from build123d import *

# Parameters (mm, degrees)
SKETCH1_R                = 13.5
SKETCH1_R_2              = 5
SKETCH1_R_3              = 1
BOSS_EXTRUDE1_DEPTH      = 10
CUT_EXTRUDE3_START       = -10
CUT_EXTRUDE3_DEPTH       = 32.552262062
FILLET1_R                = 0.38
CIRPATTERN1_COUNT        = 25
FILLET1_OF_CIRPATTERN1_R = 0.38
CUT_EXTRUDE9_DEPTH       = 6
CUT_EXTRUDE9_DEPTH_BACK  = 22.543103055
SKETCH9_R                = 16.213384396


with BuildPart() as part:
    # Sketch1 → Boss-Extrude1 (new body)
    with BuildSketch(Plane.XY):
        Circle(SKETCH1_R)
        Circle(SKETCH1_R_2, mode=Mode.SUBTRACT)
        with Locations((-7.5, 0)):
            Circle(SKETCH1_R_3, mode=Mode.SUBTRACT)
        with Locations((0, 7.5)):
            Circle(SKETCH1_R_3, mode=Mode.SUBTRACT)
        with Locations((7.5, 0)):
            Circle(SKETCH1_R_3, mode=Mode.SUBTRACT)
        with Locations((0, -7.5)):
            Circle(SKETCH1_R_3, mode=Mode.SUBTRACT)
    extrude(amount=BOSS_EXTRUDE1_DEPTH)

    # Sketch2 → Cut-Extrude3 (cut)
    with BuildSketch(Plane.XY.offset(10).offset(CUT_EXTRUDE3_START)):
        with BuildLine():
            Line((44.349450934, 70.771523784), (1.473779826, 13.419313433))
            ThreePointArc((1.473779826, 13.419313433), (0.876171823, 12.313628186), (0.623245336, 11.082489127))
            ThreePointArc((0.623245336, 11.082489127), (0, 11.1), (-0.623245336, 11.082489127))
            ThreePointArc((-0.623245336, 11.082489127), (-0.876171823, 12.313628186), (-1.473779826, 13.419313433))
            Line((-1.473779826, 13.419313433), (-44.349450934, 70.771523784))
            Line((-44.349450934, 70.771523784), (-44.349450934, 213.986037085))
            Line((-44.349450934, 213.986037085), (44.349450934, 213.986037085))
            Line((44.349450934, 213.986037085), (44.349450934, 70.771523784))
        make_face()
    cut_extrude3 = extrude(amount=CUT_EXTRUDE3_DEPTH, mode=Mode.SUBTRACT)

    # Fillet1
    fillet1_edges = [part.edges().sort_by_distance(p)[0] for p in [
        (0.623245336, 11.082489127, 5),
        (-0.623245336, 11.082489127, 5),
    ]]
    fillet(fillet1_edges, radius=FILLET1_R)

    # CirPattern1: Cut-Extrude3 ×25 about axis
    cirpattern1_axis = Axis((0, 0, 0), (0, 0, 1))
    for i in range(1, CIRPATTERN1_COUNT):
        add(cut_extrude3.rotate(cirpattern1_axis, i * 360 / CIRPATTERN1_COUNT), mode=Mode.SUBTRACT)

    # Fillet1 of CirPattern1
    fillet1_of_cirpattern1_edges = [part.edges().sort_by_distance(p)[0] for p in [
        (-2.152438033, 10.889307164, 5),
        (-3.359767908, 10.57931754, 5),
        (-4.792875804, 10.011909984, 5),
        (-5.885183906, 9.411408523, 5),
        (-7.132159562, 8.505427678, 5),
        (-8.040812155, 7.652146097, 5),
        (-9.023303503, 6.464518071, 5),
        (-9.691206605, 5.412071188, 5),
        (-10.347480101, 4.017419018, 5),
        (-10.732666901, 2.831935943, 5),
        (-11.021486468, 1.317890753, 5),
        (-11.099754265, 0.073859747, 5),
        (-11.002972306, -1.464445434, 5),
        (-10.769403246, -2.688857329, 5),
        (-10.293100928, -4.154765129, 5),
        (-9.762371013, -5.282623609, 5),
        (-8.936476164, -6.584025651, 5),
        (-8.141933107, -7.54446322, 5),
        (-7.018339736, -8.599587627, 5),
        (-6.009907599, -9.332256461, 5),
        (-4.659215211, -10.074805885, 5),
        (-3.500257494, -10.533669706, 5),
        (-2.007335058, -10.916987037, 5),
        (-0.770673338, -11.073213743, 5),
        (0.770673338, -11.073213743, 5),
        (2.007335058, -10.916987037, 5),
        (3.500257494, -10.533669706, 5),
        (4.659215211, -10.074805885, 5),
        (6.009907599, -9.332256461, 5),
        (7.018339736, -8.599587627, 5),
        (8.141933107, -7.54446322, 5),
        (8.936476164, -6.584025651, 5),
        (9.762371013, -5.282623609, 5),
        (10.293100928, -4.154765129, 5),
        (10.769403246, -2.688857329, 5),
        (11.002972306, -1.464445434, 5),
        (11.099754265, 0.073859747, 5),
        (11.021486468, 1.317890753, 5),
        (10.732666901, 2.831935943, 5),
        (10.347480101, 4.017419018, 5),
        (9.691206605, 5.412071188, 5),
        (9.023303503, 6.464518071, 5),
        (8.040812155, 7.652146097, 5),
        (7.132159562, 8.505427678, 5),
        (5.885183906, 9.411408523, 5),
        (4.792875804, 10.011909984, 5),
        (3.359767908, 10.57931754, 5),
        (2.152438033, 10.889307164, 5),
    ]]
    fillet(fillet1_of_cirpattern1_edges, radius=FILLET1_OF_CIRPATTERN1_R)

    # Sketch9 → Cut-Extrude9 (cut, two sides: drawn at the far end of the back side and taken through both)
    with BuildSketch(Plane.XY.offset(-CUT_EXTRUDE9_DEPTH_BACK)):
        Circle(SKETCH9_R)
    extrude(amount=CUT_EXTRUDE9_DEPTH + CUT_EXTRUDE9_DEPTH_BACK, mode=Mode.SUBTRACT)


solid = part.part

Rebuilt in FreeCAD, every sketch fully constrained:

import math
import FreeCAD as App
import Part
import Sketcher
Q = App.Units.Quantity


def edges_at(feature, points):
    """Names of the edges that pass closest to the given points."""
    edges = feature.Shape.Edges
    near = lambda p: min(range(len(edges)), key=lambda i: edges[i].distToShape(Part.Vertex(*p))[0])
    return sorted({f"Edge{near(p) + 1}" for p in points})

doc = App.newDocument("Part")
body = doc.addObject("PartDesign::Body", "Body")

# Sketch on XY plane
sketch1 = body.newObject("Sketcher::SketchObject", "Sketch")
sketch1.AttachmentSupport = (doc.getObject("XY_Plane"), [""])
sketch1.MapMode = "FlatFace"
sketch1.addGeometry([
    Part.Circle(App.Vector(0, 0, 0), App.Vector(0, 0, 1), 13.5),  # 0
    Part.Circle(App.Vector(0, -7.5, 0), App.Vector(0, 0, 1), 1),  # 1
    Part.Circle(App.Vector(-7.5, 0, 0), App.Vector(0, 0, 1), 1),  # 2
    Part.Circle(App.Vector(0, 0, 0), App.Vector(0, 0, 1), 5),  # 3
    Part.Circle(App.Vector(7.5, 0, 0), App.Vector(0, 0, 1), 1),  # 4
    Part.Circle(App.Vector(0, 7.5, 0), App.Vector(0, 0, 1), 1),  # 5
], False)
sketch1.addConstraint([
    Sketcher.Constraint("Coincident", 0, 3, -1, 1),
    Sketcher.Constraint("Coincident", 3, 3, -1, 1),
    Sketcher.Constraint("Equal", 1, 2),
    Sketcher.Constraint("Equal", 2, 4),
    Sketcher.Constraint("Equal", 4, 5),
    Sketcher.Constraint("Symmetric", 2, 3, 4, 3, -1, 1),
    Sketcher.Constraint("Symmetric", 1, 3, 5, 3, -1, 1),
    Sketcher.Constraint("PointOnObject", 1, 3, -2),
    Sketcher.Constraint("PointOnObject", 2, 3, -1),
    Sketcher.Constraint("Diameter", 0, Q("27 mm")),
    Sketcher.Constraint("Diameter", 1, Q("2 mm")),
    Sketcher.Constraint("Diameter", 3, Q("10 mm")),
    Sketcher.Constraint("DistanceX", 2, 3, 4, 3, Q("15 mm")),
    Sketcher.Constraint("DistanceY", 1, 3, 5, 3, Q("15 mm")),
])
pad1 = body.newObject("PartDesign::Pad", "Pad")
pad1.Profile = sketch1
pad1.Length = 10

# Sketch on XY plane
sketch2 = body.newObject("Sketcher::SketchObject", "Sketch001")
sketch2.AttachmentSupport = (doc.getObject("XY_Plane"), [""])
sketch2.MapMode = "FlatFace"
sketch2.addGeometry([
    Part.LineSegment(App.Vector(1.47378, 13.419313, 0), App.Vector(44.349451, 70.771524, 0)),  # 0
    Part.LineSegment(App.Vector(44.349451, 70.771524, 0), App.Vector(44.349451, 213.986037, 0)),  # 1
    Part.LineSegment(App.Vector(44.349451, 213.986037, 0), App.Vector(-44.349451, 213.986037, 0)),  # 2
    Part.LineSegment(App.Vector(-44.349451, 213.986037, 0), App.Vector(-44.349451, 70.771524, 0)),  # 3
    Part.LineSegment(App.Vector(-44.349451, 70.771524, 0), App.Vector(-1.47378, 13.419313, 0)),  # 4
    Part.ArcOfCircle(Part.Circle(App.Vector(-4.923062, 10.840681, 0), App.Vector(0, 0, 1), 4.306611), math.radians(3.218749), math.radians(36.781251)),  # 5
    Part.ArcOfCircle(Part.Circle(App.Vector(0, 0, 0), App.Vector(0, 0, 1), 11.1), math.radians(86.781251), math.radians(93.218749)),  # 6
    Part.ArcOfCircle(Part.Circle(App.Vector(4.923062, 10.840681, 0), App.Vector(0, 0, 1), 4.306611), math.radians(143.218749), math.radians(176.781251)),  # 7
], False)
sketch2.addConstraint([
    Sketcher.Constraint("Coincident", 0, 2, 1, 1),
    Sketcher.Constraint("Coincident", 1, 2, 2, 1),
    Sketcher.Constraint("Coincident", 2, 2, 3, 1),
    Sketcher.Constraint("Coincident", 3, 2, 4, 1),
    Sketcher.Constraint("Coincident", 4, 2, 5, 2),
    Sketcher.Constraint("Coincident", 5, 1, 6, 2),
    Sketcher.Constraint("Coincident", 6, 1, 7, 2),
    Sketcher.Constraint("Coincident", 7, 1, 0, 1),
    Sketcher.Constraint("Vertical", 1),
    Sketcher.Constraint("Horizontal", 2),
    Sketcher.Constraint("Vertical", 3),
    Sketcher.Constraint("Coincident", 6, 3, -1, 1),
    Sketcher.Constraint("Radius", 6, Q("11.1 mm")),
    Sketcher.Constraint("Radius", 5, Q("4.306611 mm")),
    Sketcher.Constraint("Radius", 7, Q("4.306611 mm")),
    Sketcher.Constraint("DistanceX", 2, 2, 2, 1, Q("88.698902 mm")),
    Sketcher.Constraint("DistanceY", 1, 1, 1, 2, Q("143.214513 mm")),
    Sketcher.Constraint("DistanceY", 3, 2, 3, 1, Q("143.214513 mm")),
    Sketcher.Constraint("DistanceY", -1, 1, 5, 3, Q("10.840681 mm")),
    Sketcher.Constraint("DistanceY", -1, 1, 7, 3, Q("10.840681 mm")),
    Sketcher.Constraint("DistanceX", -1, 1, 0, 2, Q("44.349451 mm")),
    Sketcher.Constraint("DistanceX", 4, 2, -1, 1, Q("1.47378 mm")),
    Sketcher.Constraint("DistanceY", -1, 1, 5, 1, Q("11.082489 mm")),
    Sketcher.Constraint("DistanceY", -1, 1, 6, 1, Q("11.082489 mm")),
    Sketcher.Constraint("DistanceX", -1, 1, 7, 1, Q("1.47378 mm")),
    Sketcher.Constraint("DistanceY", 4, 2, 3, 2, Q("57.35221 mm")),
])
pocket1 = body.newObject("PartDesign::Pocket", "Pocket")
pocket1.Profile = sketch2
pocket1.Length = 32.552262
pocket1.Reversed = True
doc.recompute()

fillet = body.newObject("PartDesign::Fillet", "Fillet")
fillet.Base = (pocket1, edges_at(pocket1, [(0.623, 11.082, 5), (-0.623, 11.082, 5)]))
fillet.Radius = 0.38
doc.recompute()

polarpattern = body.newObject("PartDesign::PolarPattern", "PolarPattern")
polarpattern.Originals = [pocket1]
polarpattern.Axis = (doc.getObject("Z_Axis"), [""])
polarpattern.Angle = 360
polarpattern.Occurrences = 25
body.Tip = polarpattern
doc.recompute()

fillet2 = body.newObject("PartDesign::Fillet", "Fillet001")
fillet2.Base = (polarpattern, edges_at(polarpattern, [
    (-2.152, 10.889, 5),
    (-3.36, 10.579, 5),
    (-4.793, 10.012, 5),
    (-5.885, 9.411, 5),
    (-7.132, 8.505, 5),
    (-8.041, 7.652, 5),
    (-9.023, 6.465, 5),
    (-9.691, 5.412, 5),
    (-10.347, 4.017, 5),
    (-10.733, 2.832, 5),
    (-11.021, 1.318, 5),
    (-11.1, 0.074, 5),
    (-11.003, -1.464, 5),
    (-10.769, -2.689, 5),
    (-10.293, -4.155, 5),
    (-9.762, -5.283, 5),
    (-8.936, -6.584, 5),
    (-8.142, -7.544, 5),
    (-7.018, -8.6, 5),
    (-6.01, -9.332, 5),
    (-4.659, -10.075, 5),
    (-3.5, -10.534, 5),
    (-2.007, -10.917, 5),
    (-0.771, -11.073, 5),
    (0.771, -11.073, 5),
    (2.007, -10.917, 5),
    (3.5, -10.534, 5),
    (4.659, -10.075, 5),
    (6.01, -9.332, 5),
    (7.018, -8.6, 5),
    (8.142, -7.544, 5),
    (8.936, -6.584, 5),
    (9.762, -5.283, 5),
    (10.293, -4.155, 5),
    (10.769, -2.689, 5),
    (11.003, -1.464, 5),
    (11.1, 0.074, 5),
    (11.021, 1.318, 5),
    (10.733, 2.832, 5),
    (10.347, 4.017, 5),
    (9.691, 5.412, 5),
    (9.023, 6.465, 5),
    (8.041, 7.652, 5),
    (7.132, 8.505, 5),
    (5.885, 9.411, 5),
    (4.793, 10.012, 5),
    (3.36, 10.579, 5),
    (2.152, 10.889, 5),
]))
fillet2.Radius = 0.38

# Sketch on XY plane
sketch3 = body.newObject("Sketcher::SketchObject", "Sketch002")
sketch3.AttachmentSupport = (doc.getObject("XY_Plane"), [""])
sketch3.MapMode = "FlatFace"
sketch3.addGeometry(Part.Circle(App.Vector(0, 0, 0), App.Vector(0, 0, 1), 16), False)
sketch3.addConstraint([
    Sketcher.Constraint("Coincident", 0, 3, -1, 1),
    Sketcher.Constraint("Diameter", 0, Q("32.426769 mm")),
])
pocket2 = body.newObject("PartDesign::Pocket", "Pocket001")
pocket2.Profile = sketch3
pocket2.Type = "TwoLengths"
pocket2.Length = 6
pocket2.Length2 = 22.543103
pocket2.Reversed = True

doc.recompute()
